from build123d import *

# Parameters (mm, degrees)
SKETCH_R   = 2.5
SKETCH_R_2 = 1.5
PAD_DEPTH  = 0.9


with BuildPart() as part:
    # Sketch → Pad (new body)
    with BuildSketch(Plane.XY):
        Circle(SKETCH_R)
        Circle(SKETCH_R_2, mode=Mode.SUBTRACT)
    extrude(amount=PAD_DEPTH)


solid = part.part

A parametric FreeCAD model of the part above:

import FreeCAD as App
import Part
import Sketcher

doc = App.newDocument("Part")
body = doc.addObject("PartDesign::Body", "Body")

sketch1 = body.newObject("Sketcher::SketchObject", "Sketch")
sketch1.AttachmentSupport = (doc.getObject("XY_Plane"), [""])
sketch1.MapMode = "FlatFace"
sketch1.addGeometry(Part.Circle(App.Vector(0, 0, 0), App.Vector(0, 0, 1), 2.5), False)
sketch1.addGeometry(Part.Circle(App.Vector(0, 0, 0), App.Vector(0, 0, 1), 1.5), False)
sketch1.addConstraint(Sketcher.Constraint("Coincident", 0, 3, -1, 1))
sketch1.addConstraint(Sketcher.Constraint("Coincident", 1, 3, -1, 1))
sketch1.addConstraint(Sketcher.Constraint("Diameter", 0, 5.0))
sketch1.addConstraint(Sketcher.Constraint("Diameter", 1, 3.0))
pad1 = body.newObject("PartDesign::Pad", "Pad")
pad1.Profile = sketch1
pad1.Length = 0.9

doc.recompute()
